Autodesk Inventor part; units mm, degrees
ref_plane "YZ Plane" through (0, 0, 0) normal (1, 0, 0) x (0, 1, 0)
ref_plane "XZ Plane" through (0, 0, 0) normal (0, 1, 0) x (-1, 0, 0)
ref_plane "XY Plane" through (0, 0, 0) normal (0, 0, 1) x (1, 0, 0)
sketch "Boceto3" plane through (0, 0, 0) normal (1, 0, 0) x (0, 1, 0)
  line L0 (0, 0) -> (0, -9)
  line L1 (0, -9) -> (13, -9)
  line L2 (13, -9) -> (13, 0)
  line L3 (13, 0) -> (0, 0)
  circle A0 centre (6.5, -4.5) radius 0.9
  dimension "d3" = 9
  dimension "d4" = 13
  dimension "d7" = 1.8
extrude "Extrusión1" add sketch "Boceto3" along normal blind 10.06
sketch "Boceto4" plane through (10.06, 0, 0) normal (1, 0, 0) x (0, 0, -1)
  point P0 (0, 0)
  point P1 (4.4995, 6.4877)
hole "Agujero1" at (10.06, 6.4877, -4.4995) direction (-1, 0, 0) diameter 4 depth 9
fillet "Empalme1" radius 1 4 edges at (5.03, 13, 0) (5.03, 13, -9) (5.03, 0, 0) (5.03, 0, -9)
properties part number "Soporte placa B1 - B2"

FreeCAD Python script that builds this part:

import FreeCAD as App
import Part
import Sketcher

V = App.Vector


def edges_at(feature, points):
    """Names of the edges that pass closest to the given points."""
    edges = feature.Shape.Edges
    near = lambda p: min(range(len(edges)), key=lambda i: edges[i].distToShape(Part.Vertex(*p))[0])
    return sorted({f"Edge{near(p) + 1}" for p in points})


def add_polygon(sketch, points):
    """Adds a closed chain of lines whose ends are joined by coincident constraints."""
    first, n = sketch.GeometryCount, len(points)
    for a, b in zip(points, points[1:] + points[:1]):
        sketch.addGeometry(Part.LineSegment(App.Vector(*a, 0), App.Vector(*b, 0)), False)
    for i in range(n):
        sketch.addConstraint(Sketcher.Constraint("Coincident", first + i, 2, first + (i + 1) % n, 1))

doc = App.newDocument("Part")
body = doc.addObject("PartDesign::Body", "Body")

# Sketch on YZ plane
sketch1 = body.newObject("Sketcher::SketchObject", "Sketch")
sketch1.AttachmentSupport = (doc.getObject("YZ_Plane"), [""])
sketch1.MapMode = "FlatFace"
add_polygon(sketch1, [(13, 0), (0, 0), (0, -9), (13, -9)])  # lines 0-3
sketch1.addGeometry(Part.Circle(V(6.5, -4.5, 0), V(0, 0, 1), 0.9), False)  # 4
sketch1.addConstraint([
    Sketcher.Constraint("Horizontal", 0),
    Sketcher.Constraint("Vertical", 1),
    Sketcher.Constraint("Horizontal", 2),
    Sketcher.Constraint("Vertical", 3),
    Sketcher.Constraint("Coincident", 0, 2, -1, 1),
    Sketcher.Constraint("Diameter", 4, 1.8),
    Sketcher.Constraint("DistanceX", 0, 2, 0, 1, 13.0),
    Sketcher.Constraint("DistanceY", 1, 2, 1, 1, 9.0),
    Sketcher.Constraint("DistanceX", -1, 1, 4, 3, 6.5),
    Sketcher.Constraint("DistanceY", 4, 3, -1, 1, 4.5),
])
pad1 = body.newObject("PartDesign::Pad", "Pad")
pad1.Profile = sketch1
pad1.Length = 10.06

# Sketch on YZ plane
sketch2 = body.newObject("Sketcher::SketchObject", "Sketch001")
sketch2.AttachmentSupport = (doc.getObject("YZ_Plane"), [""])
sketch2.MapMode = "FlatFace"
sketch2.AttachmentOffset = App.Placement(V(0, 0, 10.06), App.Rotation())
sketch2.addGeometry(Part.Circle(V(6.5, -4.5, 0), V(0, 0, 1), 2), False)
sketch2.addConstraint([
    Sketcher.Constraint("Diameter", 0, 4.0),
    Sketcher.Constraint("DistanceX", -1, 1, 0, 3, 6.4877),
    Sketcher.Constraint("DistanceY", 0, 3, -1, 1, 4.4995),
])
doc.recompute()
hole = body.newObject("PartDesign::Hole", "Hole")
hole.Profile = sketch2
hole.ThreadType = "None"
hole.Diameter = 4
hole.DepthType = "Dimension"
hole.Depth = 9
hole.DrillPoint = "Flat"
doc.recompute()

fillet = body.newObject("PartDesign::Fillet", "Fillet")
fillet.Base = (hole, edges_at(hole, [
    (5.03, 13, 0),
    (5.03, 13, -9),
    (5.03, 0, 0),
    (5.03, 0, -9),
]))
fillet.Radius = 1

doc.recompute()
